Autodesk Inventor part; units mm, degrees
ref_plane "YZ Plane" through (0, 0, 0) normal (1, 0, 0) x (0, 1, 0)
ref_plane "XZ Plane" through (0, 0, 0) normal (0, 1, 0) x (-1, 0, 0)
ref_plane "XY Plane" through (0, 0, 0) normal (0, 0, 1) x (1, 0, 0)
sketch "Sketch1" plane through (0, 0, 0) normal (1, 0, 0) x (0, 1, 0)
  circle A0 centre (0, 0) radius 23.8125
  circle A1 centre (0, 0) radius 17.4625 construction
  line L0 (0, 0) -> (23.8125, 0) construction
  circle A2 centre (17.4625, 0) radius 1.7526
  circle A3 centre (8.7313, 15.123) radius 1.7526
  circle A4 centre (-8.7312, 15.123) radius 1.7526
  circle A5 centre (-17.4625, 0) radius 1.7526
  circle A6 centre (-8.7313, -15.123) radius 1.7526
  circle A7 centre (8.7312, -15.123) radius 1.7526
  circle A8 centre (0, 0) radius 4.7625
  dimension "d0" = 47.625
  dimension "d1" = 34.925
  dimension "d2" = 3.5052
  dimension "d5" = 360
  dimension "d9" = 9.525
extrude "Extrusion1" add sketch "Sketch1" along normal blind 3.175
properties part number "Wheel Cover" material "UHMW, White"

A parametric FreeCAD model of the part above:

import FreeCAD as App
import Part
import Sketcher

V = App.Vector
Q = App.Units.Quantity

doc = App.newDocument("Part")
body = doc.addObject("PartDesign::Body", "Body")

sketch1 = doc.addObject("Sketcher::SketchObject", "Sketch")
body.addObject(sketch1)
sketch1.AttachmentSupport = (doc.YZ_Plane, [""])
sketch1.MapMode = "FlatFace"
sketch1.addGeometry([
    Part.Circle(V(0, 0, 0), V(0, 0, 1), 23.8125),
    Part.Circle(V(-8.7313, -15.123, 0), V(0, 0, 1), 1.7526),
    Part.Circle(V(8.7312, -15.123, 0), V(0, 0, 1), 1.7526),
    Part.Circle(V(-17.4625, 0, 0), V(0, 0, 1), 1.7526),
    Part.Circle(V(-8.7312, 15.123, 0), V(0, 0, 1), 1.7526),
    Part.Circle(V(0, 0, 0), V(0, 0, 1), 4.7625),
    Part.Circle(V(17.4625, 0, 0), V(0, 0, 1), 1.7526),
    Part.Circle(V(8.7313, 15.123, 0), V(0, 0, 1), 1.7526),
], False)
sketch1.addConstraint([
    Sketcher.Constraint("Coincident", 0, 3, -1, 1),
    Sketcher.Constraint("Coincident", 5, 3, -1, 1),
    Sketcher.Constraint("Equal", 1, 2),
    Sketcher.Constraint("Equal", 2, 3),
    Sketcher.Constraint("Equal", 3, 4),
    Sketcher.Constraint("Equal", 4, 6),
    Sketcher.Constraint("Equal", 6, 7),
    Sketcher.Constraint("Symmetric", 2, 3, 4, 3, -1, 1),
    Sketcher.Constraint("Symmetric", 3, 3, 6, 3, -1, 1),
    Sketcher.Constraint("Symmetric", 1, 3, 7, 3, -1, 1),
    Sketcher.Constraint("Symmetric", 1, 3, 2, 3, -2),
    Sketcher.Constraint("PointOnObject", 3, 3, -1),
    Sketcher.Constraint("Diameter", 0, Q("1.875 in")),
    Sketcher.Constraint("Diameter", 1, Q("0.138 in")),
    Sketcher.Constraint("Diameter", 5, Q("0.375 in")),
    Sketcher.Constraint("DistanceX", 1, 3, -1, 1, Q("0.343752 in")),
    Sketcher.Constraint("DistanceX", 3, 3, -1, 1, Q("0.6875 in")),
    Sketcher.Constraint("DistanceY", 1, 3, -1, 1, Q("0.5954 in")),
])
pad1 = doc.addObject("PartDesign::Pad", "Pad")
body.addObject(pad1)
pad1.Profile = sketch1
pad1.Length = Q("0.125 in")

doc.recompute()
